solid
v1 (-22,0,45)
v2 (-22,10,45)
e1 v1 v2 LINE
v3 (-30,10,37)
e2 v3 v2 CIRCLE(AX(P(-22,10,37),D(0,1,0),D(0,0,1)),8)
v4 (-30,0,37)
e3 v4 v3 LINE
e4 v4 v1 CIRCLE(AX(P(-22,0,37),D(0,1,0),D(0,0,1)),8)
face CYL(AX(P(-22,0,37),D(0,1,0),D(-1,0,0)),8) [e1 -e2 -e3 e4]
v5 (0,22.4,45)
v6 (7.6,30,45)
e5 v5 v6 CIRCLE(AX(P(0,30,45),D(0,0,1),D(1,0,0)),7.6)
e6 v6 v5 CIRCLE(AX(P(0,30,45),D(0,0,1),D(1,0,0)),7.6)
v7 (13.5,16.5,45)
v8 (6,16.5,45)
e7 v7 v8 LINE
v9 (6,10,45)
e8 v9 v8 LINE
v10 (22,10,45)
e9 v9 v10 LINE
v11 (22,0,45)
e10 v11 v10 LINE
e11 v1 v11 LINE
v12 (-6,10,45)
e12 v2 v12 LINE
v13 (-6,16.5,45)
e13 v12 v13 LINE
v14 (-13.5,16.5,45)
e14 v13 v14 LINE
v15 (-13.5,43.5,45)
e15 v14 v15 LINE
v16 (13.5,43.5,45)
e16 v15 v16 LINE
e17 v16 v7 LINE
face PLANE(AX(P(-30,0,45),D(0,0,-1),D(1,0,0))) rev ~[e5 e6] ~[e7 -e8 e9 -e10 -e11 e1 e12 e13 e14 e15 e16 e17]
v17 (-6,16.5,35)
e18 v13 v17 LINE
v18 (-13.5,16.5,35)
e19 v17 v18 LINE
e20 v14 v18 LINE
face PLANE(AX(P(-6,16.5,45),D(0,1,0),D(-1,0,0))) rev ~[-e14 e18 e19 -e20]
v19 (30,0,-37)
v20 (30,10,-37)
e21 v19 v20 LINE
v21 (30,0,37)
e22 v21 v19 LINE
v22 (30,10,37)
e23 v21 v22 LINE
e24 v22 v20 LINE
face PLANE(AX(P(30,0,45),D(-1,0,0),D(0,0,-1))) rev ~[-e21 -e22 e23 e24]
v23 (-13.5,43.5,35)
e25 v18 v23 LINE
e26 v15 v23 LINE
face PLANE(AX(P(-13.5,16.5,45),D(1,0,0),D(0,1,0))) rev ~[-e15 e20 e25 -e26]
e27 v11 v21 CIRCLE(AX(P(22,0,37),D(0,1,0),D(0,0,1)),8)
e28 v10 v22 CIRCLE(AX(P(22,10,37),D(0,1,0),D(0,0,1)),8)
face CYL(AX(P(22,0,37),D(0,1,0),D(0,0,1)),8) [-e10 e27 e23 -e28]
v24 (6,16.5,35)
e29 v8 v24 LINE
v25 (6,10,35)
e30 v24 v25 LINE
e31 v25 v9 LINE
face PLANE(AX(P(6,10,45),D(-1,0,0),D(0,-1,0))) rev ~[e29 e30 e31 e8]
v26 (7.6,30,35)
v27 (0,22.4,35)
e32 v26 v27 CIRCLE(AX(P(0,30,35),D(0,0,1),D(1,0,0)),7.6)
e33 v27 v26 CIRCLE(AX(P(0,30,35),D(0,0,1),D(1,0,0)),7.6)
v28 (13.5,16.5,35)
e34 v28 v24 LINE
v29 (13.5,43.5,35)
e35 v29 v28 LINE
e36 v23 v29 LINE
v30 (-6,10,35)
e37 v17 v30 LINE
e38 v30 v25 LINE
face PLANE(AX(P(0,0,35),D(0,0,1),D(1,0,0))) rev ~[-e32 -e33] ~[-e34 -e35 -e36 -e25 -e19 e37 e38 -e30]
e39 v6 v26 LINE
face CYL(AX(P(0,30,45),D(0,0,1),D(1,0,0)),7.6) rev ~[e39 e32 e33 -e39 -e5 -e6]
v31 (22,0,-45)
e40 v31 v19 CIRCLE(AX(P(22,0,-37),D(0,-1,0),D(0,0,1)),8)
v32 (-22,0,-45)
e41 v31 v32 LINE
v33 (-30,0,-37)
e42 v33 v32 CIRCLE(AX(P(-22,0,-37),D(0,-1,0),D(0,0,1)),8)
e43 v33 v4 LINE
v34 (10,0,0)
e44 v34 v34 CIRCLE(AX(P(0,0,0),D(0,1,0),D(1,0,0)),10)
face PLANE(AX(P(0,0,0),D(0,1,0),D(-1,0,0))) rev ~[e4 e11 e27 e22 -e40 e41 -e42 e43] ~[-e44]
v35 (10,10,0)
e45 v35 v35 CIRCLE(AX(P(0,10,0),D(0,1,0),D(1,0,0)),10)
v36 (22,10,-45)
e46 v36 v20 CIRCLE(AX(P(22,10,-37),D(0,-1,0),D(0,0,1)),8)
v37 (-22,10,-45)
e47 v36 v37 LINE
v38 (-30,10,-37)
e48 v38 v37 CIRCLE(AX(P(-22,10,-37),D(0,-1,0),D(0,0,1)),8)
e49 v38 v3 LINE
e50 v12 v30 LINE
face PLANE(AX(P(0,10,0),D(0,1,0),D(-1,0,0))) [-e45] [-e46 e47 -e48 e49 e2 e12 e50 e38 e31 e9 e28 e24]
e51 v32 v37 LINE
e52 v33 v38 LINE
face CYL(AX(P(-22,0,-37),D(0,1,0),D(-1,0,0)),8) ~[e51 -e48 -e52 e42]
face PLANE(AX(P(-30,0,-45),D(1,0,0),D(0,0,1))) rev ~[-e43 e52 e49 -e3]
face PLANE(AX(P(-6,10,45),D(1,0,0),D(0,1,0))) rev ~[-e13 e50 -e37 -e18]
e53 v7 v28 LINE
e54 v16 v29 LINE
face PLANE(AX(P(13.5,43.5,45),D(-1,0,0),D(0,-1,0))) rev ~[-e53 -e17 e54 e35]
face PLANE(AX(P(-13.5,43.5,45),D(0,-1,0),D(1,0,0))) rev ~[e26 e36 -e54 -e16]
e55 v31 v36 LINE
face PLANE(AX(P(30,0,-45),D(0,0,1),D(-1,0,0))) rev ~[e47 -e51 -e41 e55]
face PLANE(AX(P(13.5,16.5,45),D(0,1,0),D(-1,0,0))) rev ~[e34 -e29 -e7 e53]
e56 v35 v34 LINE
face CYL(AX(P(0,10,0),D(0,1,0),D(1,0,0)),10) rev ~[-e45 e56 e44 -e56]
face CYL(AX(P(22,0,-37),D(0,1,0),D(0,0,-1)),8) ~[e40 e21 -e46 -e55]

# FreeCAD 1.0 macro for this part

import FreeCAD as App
import Part
import Sketcher

V = App.Vector
Q = App.Units.Quantity


def edges_at(feature, points):
    """Names of the edges that pass closest to the given points."""
    edges = feature.Shape.Edges
    near = lambda p: min(range(len(edges)), key=lambda i: edges[i].distToShape(Part.Vertex(*p))[0])
    return sorted({f"Edge{near(p) + 1}" for p in points})

doc = App.newDocument("Part")
params = doc.addObject("Spreadsheet::Sheet", "Params")
for row, (alias, value) in enumerate([
    ("sketch1_width", "60 mm"),
    ("sketch1_height", "90 mm"),
    ("pad1_length", "10 mm"),
    ("sketch2_diameter", "15.2 mm"),
    ("sketch2_width", "12 mm"),
    ("sketch2_width2", "27 mm"),
    ("sketch2_height", "14.5 mm"),
    ("pad2_length", "10 mm"),
    ("fillet_radius", "8 mm"),
    ("sketch3_diameter", "20 mm"),
    ("pocket1_length", "10 mm"),
], start=1):
    params.set(f"A{row}", alias)
    params.set(f"B{row}", "=" + value)
    params.setAlias(f"B{row}", alias)

body = doc.addObject("PartDesign::Body", "Body")

# Sketch on XZ plane
sketch1 = doc.addObject("Sketcher::SketchObject", "Sketch")
body.addObject(sketch1)
sketch1.AttachmentSupport = (doc.XZ_Plane, [""])
sketch1.MapMode = "FlatFace"
sketch1.addGeometry([
    Part.LineSegment(V(-30, -45, 0), V(-30, 45, 0)),
    Part.LineSegment(V(-30, 45, 0), V(30, 45, 0)),
    Part.LineSegment(V(30, 45, 0), V(30, -45, 0)),
    Part.LineSegment(V(30, -45, 0), V(-30, -45, 0)),
], False)
sketch1.addConstraint([
    Sketcher.Constraint("Coincident", 0, 2, 1, 1),
    Sketcher.Constraint("Coincident", 1, 2, 2, 1),
    Sketcher.Constraint("Coincident", 2, 2, 3, 1),
    Sketcher.Constraint("Coincident", 3, 2, 0, 1),
    Sketcher.Constraint("Vertical", 0),
    Sketcher.Constraint("Horizontal", 1),
    Sketcher.Constraint("Vertical", 2),
    Sketcher.Constraint("Horizontal", 3),
    Sketcher.Constraint("Symmetric", 0, 2, 2, 2, -1, 1),
    Sketcher.Constraint("DistanceX", 1, 1, 1, 2, Q("60 mm")),
    Sketcher.Constraint("DistanceY", 0, 1, 0, 2, Q("90 mm")),
])
sketch1.setExpression("Constraints[9]", "Params.sketch1_width")
sketch1.setExpression("Constraints[10]", "Params.sketch1_height")
pad1 = doc.addObject("PartDesign::Pad", "Pad")
body.addObject(pad1)
pad1.Profile = sketch1
pad1.setExpression("Length", "Params.pad1_length")
pad1.Reversed = True

# Sketch on XY plane
sketch2 = doc.addObject("Sketcher::SketchObject", "Sketch001")
body.addObject(sketch2)
sketch2.AttachmentSupport = (doc.XY_Plane, [""])
sketch2.MapMode = "FlatFace"
sketch2.AttachmentOffset = App.Placement(V(0, 0, 45), App.Rotation())
sketch2.addGeometry([
    Part.LineSegment(V(-6, 16, 0), V(-6, 2, 0)),  # 0
    Part.LineSegment(V(-6, 2, 0), V(6, 2, 0)),  # 1
    Part.LineSegment(V(6, 2, 0), V(6, 16, 0)),  # 2
    Part.LineSegment(V(6, 16, 0), V(14, 16, 0)),  # 3
    Part.LineSegment(V(14, 16, 0), V(14, 44, 0)),  # 4
    Part.LineSegment(V(14, 44, 0), V(-14, 44, 0)),  # 5
    Part.LineSegment(V(-14, 44, 0), V(-14, 16, 0)),  # 6
    Part.LineSegment(V(-14, 16, 0), V(-6, 16, 0)),  # 7
    Part.Circle(V(0, 30, 0), V(0, 0, 1), 8),  # 8
], False)
sketch2.addConstraint([
    Sketcher.Constraint("Coincident", 0, 2, 1, 1),
    Sketcher.Constraint("Coincident", 1, 2, 2, 1),
    Sketcher.Constraint("Coincident", 2, 2, 3, 1),
    Sketcher.Constraint("Coincident", 3, 2, 4, 1),
    Sketcher.Constraint("Coincident", 4, 2, 5, 1),
    Sketcher.Constraint("Coincident", 5, 2, 6, 1),
    Sketcher.Constraint("Coincident", 6, 2, 7, 1),
    Sketcher.Constraint("Coincident", 7, 2, 0, 1),
    Sketcher.Constraint("Vertical", 0),
    Sketcher.Constraint("Horizontal", 1),
    Sketcher.Constraint("Vertical", 2),
    Sketcher.Constraint("Horizontal", 3),
    Sketcher.Constraint("Vertical", 4),
    Sketcher.Constraint("Horizontal", 5),
    Sketcher.Constraint("Vertical", 6),
    Sketcher.Constraint("Horizontal", 7),
    Sketcher.Constraint("Symmetric", 3, 2, 6, 2, -2),
    Sketcher.Constraint("PointOnObject", 8, 3, -2),
    Sketcher.Constraint("Equal", 3, 7),
    Sketcher.Constraint("Equal", 5, 4),
    Sketcher.Constraint("Diameter", 8, Q("15.2 mm")),
    Sketcher.Constraint("DistanceX", 1, 1, 1, 2, Q("12 mm")),
    Sketcher.Constraint("DistanceX", 5, 2, 5, 1, Q("27 mm")),
    Sketcher.Constraint("DistanceY", 0, 2, 0, 1, Q("14.5 mm")),
    Sketcher.Constraint("DistanceY", -1, 1, 8, 3, Q("30 mm")),
    Sketcher.Constraint("DistanceY", -1, 1, 0, 2, Q("2 mm")),
])
sketch2.setExpression("Constraints[20]", "Params.sketch2_diameter")
sketch2.setExpression("Constraints[21]", "Params.sketch2_width")
sketch2.setExpression("Constraints[22]", "Params.sketch2_width2")
sketch2.setExpression("Constraints[23]", "Params.sketch2_height")
pad2 = doc.addObject("PartDesign::Pad", "Pad001")
body.addObject(pad2)
pad2.Profile = sketch2
pad2.setExpression("Length", "Params.pad2_length")
pad2.Reversed = True
doc.recompute()

fillet = doc.addObject("PartDesign::Fillet", "Fillet")
body.addObject(fillet)
fillet.Base = (pad2, edges_at(pad2, [
    (-30, 5, 45),
    (30, 5, 45),
    (30, 5, -45),
    (-30, 5, -45),
]))
fillet.setExpression("Radius", "Params.fillet_radius")

# Sketch on XZ plane
sketch3 = doc.addObject("Sketcher::SketchObject", "Sketch002")
body.addObject(sketch3)
sketch3.AttachmentSupport = (doc.XZ_Plane, [""])
sketch3.MapMode = "FlatFace"
sketch3.AttachmentOffset = App.Placement(V(0, 0, -10), App.Rotation())
sketch3.addGeometry(Part.Circle(V(0, 0, 0), V(0, 0, 1), 10), False)
sketch3.addConstraint([
    Sketcher.Constraint("Coincident", 0, 3, -1, 1),
    Sketcher.Constraint("Diameter", 0, Q("20 mm")),
])
sketch3.setExpression("Constraints[1]", "Params.sketch3_diameter")
pocket1 = doc.addObject("PartDesign::Pocket", "Pocket")
body.addObject(pocket1)
pocket1.Profile = sketch3
pocket1.setExpression("Length", "Params.pocket1_length")
pocket1.Reversed = True

doc.recompute()
